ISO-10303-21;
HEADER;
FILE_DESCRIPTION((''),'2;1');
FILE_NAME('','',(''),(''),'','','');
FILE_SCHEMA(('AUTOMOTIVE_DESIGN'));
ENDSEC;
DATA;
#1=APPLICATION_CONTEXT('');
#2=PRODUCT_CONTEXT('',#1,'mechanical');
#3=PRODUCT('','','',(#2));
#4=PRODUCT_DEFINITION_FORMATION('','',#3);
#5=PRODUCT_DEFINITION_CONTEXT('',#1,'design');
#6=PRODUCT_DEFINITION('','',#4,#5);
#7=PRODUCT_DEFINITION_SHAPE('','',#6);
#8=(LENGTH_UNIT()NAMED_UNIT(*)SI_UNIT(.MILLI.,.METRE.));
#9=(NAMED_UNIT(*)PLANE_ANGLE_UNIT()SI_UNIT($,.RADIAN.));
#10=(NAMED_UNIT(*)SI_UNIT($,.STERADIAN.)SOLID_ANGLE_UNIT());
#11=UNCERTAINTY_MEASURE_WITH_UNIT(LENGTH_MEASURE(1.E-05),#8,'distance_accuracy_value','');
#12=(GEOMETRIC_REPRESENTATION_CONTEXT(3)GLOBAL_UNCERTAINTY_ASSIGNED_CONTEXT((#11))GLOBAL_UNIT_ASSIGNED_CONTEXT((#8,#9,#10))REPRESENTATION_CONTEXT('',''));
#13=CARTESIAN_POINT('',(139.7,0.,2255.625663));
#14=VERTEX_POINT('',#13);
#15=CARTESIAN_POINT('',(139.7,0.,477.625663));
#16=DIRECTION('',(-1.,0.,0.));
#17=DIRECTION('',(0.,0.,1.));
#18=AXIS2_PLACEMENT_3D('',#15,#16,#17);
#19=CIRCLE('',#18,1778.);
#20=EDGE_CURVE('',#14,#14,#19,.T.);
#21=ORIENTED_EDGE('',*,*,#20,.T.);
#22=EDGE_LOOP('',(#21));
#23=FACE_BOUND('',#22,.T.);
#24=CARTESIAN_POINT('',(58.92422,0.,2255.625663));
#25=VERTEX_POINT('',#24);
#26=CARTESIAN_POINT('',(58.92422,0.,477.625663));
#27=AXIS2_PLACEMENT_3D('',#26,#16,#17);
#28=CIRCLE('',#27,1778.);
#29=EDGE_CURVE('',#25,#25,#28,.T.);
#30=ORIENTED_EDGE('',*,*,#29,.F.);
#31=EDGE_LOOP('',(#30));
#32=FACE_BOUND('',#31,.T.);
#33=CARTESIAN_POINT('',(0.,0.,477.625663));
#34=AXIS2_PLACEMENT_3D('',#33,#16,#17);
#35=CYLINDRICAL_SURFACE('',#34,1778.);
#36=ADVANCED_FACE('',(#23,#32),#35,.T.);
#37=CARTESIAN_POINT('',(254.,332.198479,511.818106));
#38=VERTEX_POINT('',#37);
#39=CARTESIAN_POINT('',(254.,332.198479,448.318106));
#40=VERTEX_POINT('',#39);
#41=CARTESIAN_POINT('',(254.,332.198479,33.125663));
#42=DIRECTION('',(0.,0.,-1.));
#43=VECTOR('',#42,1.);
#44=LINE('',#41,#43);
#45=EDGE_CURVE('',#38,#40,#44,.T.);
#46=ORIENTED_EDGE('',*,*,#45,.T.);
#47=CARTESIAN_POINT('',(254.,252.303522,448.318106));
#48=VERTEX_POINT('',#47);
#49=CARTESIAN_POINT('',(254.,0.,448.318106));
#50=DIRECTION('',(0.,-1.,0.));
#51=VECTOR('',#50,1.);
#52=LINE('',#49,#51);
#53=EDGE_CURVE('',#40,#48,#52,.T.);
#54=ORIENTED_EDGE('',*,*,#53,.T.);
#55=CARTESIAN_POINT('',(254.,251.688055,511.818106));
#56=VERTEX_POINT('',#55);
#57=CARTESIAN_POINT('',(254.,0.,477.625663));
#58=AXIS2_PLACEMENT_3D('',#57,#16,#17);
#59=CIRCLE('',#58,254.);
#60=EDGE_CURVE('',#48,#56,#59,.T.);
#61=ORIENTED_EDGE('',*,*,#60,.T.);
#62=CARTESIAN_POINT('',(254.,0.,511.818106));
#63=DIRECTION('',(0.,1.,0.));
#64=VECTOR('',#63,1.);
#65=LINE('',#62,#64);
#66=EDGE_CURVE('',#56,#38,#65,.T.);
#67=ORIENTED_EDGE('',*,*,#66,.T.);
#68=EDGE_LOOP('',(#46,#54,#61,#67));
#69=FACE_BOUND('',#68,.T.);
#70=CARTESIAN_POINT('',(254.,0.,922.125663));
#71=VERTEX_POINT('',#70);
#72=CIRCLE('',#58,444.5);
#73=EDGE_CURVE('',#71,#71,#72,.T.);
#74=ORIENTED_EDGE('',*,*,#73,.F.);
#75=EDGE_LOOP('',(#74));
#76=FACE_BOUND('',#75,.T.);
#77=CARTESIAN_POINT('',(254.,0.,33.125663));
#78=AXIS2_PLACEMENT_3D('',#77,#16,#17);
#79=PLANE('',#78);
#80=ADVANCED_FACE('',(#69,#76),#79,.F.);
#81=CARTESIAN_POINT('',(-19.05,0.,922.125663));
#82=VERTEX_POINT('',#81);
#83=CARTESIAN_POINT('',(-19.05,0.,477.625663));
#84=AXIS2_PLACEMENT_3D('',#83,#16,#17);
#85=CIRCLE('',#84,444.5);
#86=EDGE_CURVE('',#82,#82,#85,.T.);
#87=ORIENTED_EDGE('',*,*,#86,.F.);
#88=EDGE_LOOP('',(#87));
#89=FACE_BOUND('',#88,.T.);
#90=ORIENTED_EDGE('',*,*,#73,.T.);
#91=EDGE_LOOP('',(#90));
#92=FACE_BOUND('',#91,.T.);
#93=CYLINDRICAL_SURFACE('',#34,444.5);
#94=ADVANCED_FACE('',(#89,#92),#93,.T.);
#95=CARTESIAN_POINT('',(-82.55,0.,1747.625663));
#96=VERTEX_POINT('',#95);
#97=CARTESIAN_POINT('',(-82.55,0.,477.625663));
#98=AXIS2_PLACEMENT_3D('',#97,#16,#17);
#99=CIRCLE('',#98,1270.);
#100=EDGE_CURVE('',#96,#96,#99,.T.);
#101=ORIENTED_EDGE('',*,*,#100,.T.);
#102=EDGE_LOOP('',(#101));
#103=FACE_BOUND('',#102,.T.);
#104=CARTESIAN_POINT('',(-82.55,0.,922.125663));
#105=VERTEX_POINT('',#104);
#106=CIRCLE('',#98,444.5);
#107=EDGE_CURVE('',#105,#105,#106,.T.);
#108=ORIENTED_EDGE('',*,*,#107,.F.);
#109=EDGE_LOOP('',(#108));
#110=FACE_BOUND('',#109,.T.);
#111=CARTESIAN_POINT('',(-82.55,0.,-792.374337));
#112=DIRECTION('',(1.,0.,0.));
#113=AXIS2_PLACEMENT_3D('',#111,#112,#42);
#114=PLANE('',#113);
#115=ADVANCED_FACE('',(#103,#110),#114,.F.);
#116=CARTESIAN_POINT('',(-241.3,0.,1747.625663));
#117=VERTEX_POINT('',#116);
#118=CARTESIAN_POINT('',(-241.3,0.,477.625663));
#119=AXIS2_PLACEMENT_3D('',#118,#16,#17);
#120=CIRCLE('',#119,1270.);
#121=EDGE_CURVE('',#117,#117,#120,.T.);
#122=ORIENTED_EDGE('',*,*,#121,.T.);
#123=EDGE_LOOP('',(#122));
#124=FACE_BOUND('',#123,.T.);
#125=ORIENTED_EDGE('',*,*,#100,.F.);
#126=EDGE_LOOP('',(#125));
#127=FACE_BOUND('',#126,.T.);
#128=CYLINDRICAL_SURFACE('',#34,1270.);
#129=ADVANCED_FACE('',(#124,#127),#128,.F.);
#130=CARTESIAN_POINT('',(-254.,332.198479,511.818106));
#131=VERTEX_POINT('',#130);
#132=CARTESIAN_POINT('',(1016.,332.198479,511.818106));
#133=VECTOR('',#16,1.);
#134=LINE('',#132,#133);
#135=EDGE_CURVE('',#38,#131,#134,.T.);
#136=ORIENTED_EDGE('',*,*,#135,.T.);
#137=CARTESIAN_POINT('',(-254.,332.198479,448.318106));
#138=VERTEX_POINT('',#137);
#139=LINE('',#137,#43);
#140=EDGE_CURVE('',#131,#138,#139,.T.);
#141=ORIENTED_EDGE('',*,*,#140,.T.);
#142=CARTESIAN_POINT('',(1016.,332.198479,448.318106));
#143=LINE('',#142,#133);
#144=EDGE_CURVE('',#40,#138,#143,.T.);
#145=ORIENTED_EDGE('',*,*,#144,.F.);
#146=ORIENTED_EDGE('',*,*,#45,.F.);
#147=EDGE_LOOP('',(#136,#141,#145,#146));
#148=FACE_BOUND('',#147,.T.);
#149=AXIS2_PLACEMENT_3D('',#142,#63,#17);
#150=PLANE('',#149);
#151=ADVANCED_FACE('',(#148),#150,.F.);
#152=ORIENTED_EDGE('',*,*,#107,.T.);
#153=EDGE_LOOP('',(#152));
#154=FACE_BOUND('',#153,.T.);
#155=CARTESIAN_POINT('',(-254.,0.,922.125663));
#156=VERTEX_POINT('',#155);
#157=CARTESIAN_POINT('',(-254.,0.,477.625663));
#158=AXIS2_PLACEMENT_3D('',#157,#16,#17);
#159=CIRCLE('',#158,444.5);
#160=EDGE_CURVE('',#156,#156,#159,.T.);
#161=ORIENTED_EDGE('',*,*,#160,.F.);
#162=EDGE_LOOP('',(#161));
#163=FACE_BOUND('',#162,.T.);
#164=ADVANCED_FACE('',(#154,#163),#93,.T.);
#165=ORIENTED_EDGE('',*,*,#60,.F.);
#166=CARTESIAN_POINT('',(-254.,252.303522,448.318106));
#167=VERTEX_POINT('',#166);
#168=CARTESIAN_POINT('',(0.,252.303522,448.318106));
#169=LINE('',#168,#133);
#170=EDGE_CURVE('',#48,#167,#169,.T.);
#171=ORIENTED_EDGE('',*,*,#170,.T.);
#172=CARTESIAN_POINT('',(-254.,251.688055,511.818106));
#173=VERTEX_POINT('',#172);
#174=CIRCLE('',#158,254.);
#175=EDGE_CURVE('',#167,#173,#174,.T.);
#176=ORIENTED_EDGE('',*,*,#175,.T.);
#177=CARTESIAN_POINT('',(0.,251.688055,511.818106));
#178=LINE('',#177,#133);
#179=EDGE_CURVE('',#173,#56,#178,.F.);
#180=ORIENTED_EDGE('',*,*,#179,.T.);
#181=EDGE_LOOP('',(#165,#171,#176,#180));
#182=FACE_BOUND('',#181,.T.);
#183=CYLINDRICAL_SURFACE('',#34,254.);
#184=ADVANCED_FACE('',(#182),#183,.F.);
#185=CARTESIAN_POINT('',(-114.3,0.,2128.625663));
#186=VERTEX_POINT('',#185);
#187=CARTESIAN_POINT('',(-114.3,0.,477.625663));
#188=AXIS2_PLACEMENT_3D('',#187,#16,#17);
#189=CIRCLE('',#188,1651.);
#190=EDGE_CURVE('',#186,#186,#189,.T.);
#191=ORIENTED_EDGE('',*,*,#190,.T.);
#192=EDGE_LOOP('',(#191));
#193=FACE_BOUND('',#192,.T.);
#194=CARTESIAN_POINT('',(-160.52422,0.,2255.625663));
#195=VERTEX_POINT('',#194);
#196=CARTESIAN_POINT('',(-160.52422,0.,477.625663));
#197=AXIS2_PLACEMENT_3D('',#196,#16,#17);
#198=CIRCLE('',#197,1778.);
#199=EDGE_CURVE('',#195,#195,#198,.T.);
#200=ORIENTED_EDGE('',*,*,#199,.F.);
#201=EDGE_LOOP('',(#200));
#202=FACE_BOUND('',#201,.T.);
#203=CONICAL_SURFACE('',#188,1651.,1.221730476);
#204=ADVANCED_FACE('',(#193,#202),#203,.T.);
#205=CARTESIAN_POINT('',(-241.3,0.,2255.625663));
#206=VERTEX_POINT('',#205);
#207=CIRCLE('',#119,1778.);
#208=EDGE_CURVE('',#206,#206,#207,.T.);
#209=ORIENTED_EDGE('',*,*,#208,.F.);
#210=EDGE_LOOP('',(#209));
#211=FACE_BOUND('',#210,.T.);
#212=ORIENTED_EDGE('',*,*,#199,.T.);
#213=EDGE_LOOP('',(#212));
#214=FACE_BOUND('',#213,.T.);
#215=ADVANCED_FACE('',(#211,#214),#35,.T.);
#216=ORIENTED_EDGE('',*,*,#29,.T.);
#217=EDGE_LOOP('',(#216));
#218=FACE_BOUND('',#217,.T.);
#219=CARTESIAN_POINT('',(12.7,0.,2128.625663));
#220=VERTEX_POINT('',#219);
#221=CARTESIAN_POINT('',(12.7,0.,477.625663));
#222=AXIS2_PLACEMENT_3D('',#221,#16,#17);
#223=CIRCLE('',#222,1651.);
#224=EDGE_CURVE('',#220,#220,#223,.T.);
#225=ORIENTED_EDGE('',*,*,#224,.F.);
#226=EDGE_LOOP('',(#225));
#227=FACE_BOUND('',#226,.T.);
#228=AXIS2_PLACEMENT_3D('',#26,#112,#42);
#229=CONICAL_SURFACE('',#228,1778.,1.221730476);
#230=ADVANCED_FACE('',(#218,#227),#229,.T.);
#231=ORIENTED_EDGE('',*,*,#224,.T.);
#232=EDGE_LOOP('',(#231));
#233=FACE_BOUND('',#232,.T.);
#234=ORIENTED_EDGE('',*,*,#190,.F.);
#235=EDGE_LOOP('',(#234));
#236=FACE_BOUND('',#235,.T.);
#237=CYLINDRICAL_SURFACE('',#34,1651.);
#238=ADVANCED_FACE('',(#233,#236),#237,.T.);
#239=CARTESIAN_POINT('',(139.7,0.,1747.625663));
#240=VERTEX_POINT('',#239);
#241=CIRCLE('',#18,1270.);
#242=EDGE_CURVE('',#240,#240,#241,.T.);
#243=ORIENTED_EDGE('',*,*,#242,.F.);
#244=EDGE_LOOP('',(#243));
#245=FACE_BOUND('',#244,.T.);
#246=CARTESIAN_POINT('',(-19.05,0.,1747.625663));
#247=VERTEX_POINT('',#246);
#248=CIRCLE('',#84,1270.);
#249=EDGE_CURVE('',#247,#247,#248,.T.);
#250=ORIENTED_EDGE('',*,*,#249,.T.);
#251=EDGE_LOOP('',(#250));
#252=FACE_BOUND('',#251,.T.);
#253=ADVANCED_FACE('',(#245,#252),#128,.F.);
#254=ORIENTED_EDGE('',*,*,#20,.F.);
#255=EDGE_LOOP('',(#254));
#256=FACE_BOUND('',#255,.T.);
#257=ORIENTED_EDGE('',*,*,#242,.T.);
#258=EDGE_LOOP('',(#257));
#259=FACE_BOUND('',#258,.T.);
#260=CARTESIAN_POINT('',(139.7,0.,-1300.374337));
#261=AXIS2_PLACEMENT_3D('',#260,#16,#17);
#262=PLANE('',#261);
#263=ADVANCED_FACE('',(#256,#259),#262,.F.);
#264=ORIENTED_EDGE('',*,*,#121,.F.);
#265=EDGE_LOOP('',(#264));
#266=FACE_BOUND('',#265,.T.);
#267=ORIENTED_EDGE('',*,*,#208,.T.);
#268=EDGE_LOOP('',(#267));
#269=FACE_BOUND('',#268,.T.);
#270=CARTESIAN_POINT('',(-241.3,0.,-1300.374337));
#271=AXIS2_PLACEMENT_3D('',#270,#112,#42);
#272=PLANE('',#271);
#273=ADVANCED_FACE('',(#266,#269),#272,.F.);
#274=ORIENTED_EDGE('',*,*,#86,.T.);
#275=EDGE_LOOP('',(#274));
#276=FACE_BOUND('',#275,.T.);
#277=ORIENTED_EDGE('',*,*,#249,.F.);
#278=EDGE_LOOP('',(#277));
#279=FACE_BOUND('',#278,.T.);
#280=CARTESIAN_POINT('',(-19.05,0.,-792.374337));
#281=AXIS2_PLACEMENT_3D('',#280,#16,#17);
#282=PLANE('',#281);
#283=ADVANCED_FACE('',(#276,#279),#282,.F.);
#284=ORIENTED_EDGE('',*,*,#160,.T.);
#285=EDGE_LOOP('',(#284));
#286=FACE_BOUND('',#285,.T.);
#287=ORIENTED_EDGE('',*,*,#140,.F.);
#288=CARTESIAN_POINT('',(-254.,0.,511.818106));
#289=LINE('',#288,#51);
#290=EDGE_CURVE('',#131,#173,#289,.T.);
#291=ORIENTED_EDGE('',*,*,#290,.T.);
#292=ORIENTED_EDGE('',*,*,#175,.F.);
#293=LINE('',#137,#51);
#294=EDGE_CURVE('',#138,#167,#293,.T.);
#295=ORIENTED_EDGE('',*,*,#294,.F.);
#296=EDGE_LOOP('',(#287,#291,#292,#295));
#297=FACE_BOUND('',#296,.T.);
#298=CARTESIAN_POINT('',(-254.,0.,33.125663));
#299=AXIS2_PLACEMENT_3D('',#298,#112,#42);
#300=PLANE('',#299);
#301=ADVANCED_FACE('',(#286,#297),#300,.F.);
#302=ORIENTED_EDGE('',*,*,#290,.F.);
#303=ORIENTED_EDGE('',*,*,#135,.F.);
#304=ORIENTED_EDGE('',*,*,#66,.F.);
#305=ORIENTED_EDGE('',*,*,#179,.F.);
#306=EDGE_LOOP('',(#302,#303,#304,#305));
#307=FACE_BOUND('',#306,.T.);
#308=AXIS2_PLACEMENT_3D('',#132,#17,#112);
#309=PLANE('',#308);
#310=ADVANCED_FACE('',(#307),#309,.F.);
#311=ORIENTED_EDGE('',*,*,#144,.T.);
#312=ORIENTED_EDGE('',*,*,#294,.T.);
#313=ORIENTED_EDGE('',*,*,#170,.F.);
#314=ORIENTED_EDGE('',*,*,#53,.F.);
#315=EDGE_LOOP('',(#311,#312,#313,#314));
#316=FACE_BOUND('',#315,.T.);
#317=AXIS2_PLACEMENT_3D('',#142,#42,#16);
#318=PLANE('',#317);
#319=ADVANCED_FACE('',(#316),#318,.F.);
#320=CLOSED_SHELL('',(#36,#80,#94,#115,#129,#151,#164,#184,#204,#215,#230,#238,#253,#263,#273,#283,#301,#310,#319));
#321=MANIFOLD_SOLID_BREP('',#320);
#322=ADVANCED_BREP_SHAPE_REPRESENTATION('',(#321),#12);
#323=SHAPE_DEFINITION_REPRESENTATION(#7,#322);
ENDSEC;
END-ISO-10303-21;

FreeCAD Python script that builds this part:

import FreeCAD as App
import Part
import Sketcher
from FreeCAD import Vector
Q = App.Units.Quantity


def add_polygon(sketch, points):
    """Adds a closed chain of lines whose ends are joined by coincident constraints."""
    first, n = sketch.GeometryCount, len(points)
    for a, b in zip(points, points[1:] + points[:1]):
        sketch.addGeometry(Part.LineSegment(App.Vector(*a, 0), App.Vector(*b, 0)), False)
    for i in range(n):
        sketch.addConstraint(Sketcher.Constraint("Coincident", first + i, 2, first + (i + 1) % n, 1))

doc = App.newDocument("Part")
body = doc.addObject("PartDesign::Body", "Body")

# Sketch on XZ plane
sketch1 = doc.addObject("Sketcher::SketchObject", "Sketch")
body.addObject(sketch1)
sketch1.AttachmentSupport = (doc.XZ_Plane, [""])
sketch1.MapMode = "FlatFace"
add_polygon(sketch1, [(254, 33), (-19, 33), (-19, -792), (140, -792), (140, -1300), (59, -1300), (13, -1173), (-114, -1173), (-161, -1300), (-241, -1300), (-241, -792), (-83, -792), (-83, 33), (-254, 33), (-254, 224), (254, 224)])  # lines 0-15
sketch1.addGeometry(Part.LineSegment(Vector(-254, 478, 0), Vector(254, 478, 0)), True)  # axis
sketch1.addConstraint([
    Sketcher.Constraint("Horizontal", 0),
    Sketcher.Constraint("Vertical", 1),
    Sketcher.Constraint("Horizontal", 2),
    Sketcher.Constraint("Vertical", 3),
    Sketcher.Constraint("Horizontal", 4),
    Sketcher.Constraint("Horizontal", 6),
    Sketcher.Constraint("Horizontal", 8),
    Sketcher.Constraint("Vertical", 9),
    Sketcher.Constraint("Horizontal", 10),
    Sketcher.Constraint("Vertical", 11),
    Sketcher.Constraint("Horizontal", 12),
    Sketcher.Constraint("Vertical", 13),
    Sketcher.Constraint("Horizontal", 14),
    Sketcher.Constraint("Vertical", 15),
    Sketcher.Constraint("Horizontal", 16),
    Sketcher.Constraint("Symmetric", 12, 2, 15, 2, -2),
    Sketcher.Constraint("Horizontal", 4, 2, 7, 2),
    Sketcher.Constraint("Horizontal", 2, 2, 9, 2),
    Sketcher.Constraint("Vertical", 13, 2, 16, 1),
    Sketcher.Constraint("Vertical", 15, 2, 16, 2),
    Sketcher.Constraint("Equal", 4, 8),
    Sketcher.Constraint("Equal", 2, 10),
    Sketcher.Constraint("Equal", 16, 3),
    Sketcher.Constraint("Equal", 5, 7),
    Sketcher.Constraint("DistanceX", 6, 2, 6, 1, Q("5 in")),
    Sketcher.Constraint("DistanceX", 14, 1, 14, 2, Q("20 in")),
    Sketcher.Constraint("DistanceY", 1, 2, 1, 1, Q("32.5 in")),
    Sketcher.Constraint("DistanceY", 13, 1, 13, 2, Q("7.5 in")),
    Sketcher.Constraint("Angle", 5, Q("110 deg")),
    Sketcher.Constraint("DistanceY", 4, 2, 5, 2, Q("5 in")),
    Sketcher.Constraint("DistanceX", 5, 2, 3, 2, Q("5 in")),
    Sketcher.Constraint("DistanceY", 13, 2, 16, 1, Q("10 in")),
    Sketcher.Constraint("DistanceX", 0, 2, 0, 1, Q("10.75 in")),
    Sketcher.Constraint("DistanceX", 2, 1, 2, 2, Q("6.25 in")),
    Sketcher.Constraint("DistanceY", -1, 1, 0, 2, Q("33.125663 mm")),
])
revolution = doc.addObject("PartDesign::Revolution", "Revolution")
body.addObject(revolution)
revolution.Profile = sketch1
revolution.ReferenceAxis = (sketch1, ["Axis0"])
revolution.Angle = 360

# Sketch on YZ plane
sketch2 = doc.addObject("Sketcher::SketchObject", "Sketch001")
body.addObject(sketch2)
sketch2.AttachmentSupport = (doc.YZ_Plane, [""])
sketch2.MapMode = "FlatFace"
sketch2.AttachmentOffset = App.Placement(Vector(0, 0, -10 * 25.4), App.Rotation())
add_polygon(sketch2, [(332, 448), (180, 448), (180, 512), (332, 512)])  # lines 0-3
sketch2.addConstraint([
    Sketcher.Constraint("Horizontal", 0),
    Sketcher.Constraint("Vertical", 1),
    Sketcher.Constraint("Horizontal", 2),
    Sketcher.Constraint("Vertical", 3),
    Sketcher.Constraint("DistanceX", 0, 2, 0, 1, Q("6 in")),
    Sketcher.Constraint("DistanceY", 1, 1, 1, 2, Q("2.5 in")),
    Sketcher.Constraint("DistanceX", -1, 1, 0, 2, Q("179.798479 mm")),
    Sketcher.Constraint("DistanceY", -1, 1, 0, 2, Q("448.318106 mm")),
])
pocket1 = doc.addObject("PartDesign::Pocket", "Pocket")
body.addObject(pocket1)
pocket1.Profile = sketch2
pocket1.Length = Q("50 in")
pocket1.Reversed = True

doc.recompute()
